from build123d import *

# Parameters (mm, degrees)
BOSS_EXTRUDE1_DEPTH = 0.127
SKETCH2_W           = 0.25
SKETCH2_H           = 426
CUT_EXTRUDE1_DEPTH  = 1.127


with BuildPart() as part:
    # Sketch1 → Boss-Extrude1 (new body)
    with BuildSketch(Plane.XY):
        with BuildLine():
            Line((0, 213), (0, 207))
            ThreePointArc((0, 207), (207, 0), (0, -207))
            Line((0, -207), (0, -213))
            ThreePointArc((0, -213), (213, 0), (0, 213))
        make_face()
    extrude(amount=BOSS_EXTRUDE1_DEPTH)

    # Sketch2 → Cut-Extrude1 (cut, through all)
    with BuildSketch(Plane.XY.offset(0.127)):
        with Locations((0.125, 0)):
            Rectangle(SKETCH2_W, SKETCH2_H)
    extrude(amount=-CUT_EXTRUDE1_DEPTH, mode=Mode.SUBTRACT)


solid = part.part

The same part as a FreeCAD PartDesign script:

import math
import FreeCAD as App
import Part
import Sketcher


def add_polygon(sketch, points):
    """Adds a closed chain of lines whose ends are joined by coincident constraints."""
    first, n = sketch.GeometryCount, len(points)
    for a, b in zip(points, points[1:] + points[:1]):
        sketch.addGeometry(Part.LineSegment(App.Vector(*a, 0), App.Vector(*b, 0)), False)
    for i in range(n):
        sketch.addConstraint(Sketcher.Constraint("Coincident", first + i, 2, first + (i + 1) % n, 1))

doc = App.newDocument("Part")
body = doc.addObject("PartDesign::Body", "Body")

# Sketch on XY plane
sketch1 = body.newObject("Sketcher::SketchObject", "Sketch")
sketch1.AttachmentSupport = (doc.getObject("XY_Plane"), [""])
sketch1.MapMode = "FlatFace"
sketch1.addGeometry([
    Part.LineSegment(App.Vector(0, 213, 0), App.Vector(0, 207, 0)),
    Part.ArcOfCircle(Part.Circle(App.Vector(0, 0, 0), App.Vector(0, 0, 1), 207), math.radians(-90), math.radians(90)),
    Part.LineSegment(App.Vector(0, -207, 0), App.Vector(0, -213, 0)),
    Part.ArcOfCircle(Part.Circle(App.Vector(0, 0, 0), App.Vector(0, 0, 1), 213), math.radians(-90), math.radians(90)),
], False)
sketch1.addConstraint([
    Sketcher.Constraint("Coincident", 0, 2, 1, 2),
    Sketcher.Constraint("Coincident", 1, 1, 2, 1),
    Sketcher.Constraint("Coincident", 2, 2, 3, 1),
    Sketcher.Constraint("Coincident", 3, 2, 0, 1),
    Sketcher.Constraint("Vertical", 0),
    Sketcher.Constraint("Vertical", 2),
    Sketcher.Constraint("Coincident", 1, 3, -1, 1),
    Sketcher.Constraint("Coincident", 3, 3, -1, 1),
    Sketcher.Constraint("PointOnObject", 0, 2, -2),
    Sketcher.Constraint("PointOnObject", 1, 1, -2),
    Sketcher.Constraint("Radius", 1, 207.0),
    Sketcher.Constraint("Radius", 3, 213.0),
])
pad1 = body.newObject("PartDesign::Pad", "Pad")
pad1.Profile = sketch1
pad1.Length = 0.127

# Sketch on XY plane
sketch2 = body.newObject("Sketcher::SketchObject", "Sketch001")
sketch2.AttachmentSupport = (doc.getObject("XY_Plane"), [""])
sketch2.MapMode = "FlatFace"
sketch2.AttachmentOffset = App.Placement(App.Vector(0, 0, 0.127), App.Rotation())
add_polygon(sketch2, [(0, 213), (0, -213), (0.25, -213), (0.25, 213)])  # lines 0-3
sketch2.addConstraint([
    Sketcher.Constraint("Vertical", 0),
    Sketcher.Constraint("Horizontal", 1),
    Sketcher.Constraint("Vertical", 2),
    Sketcher.Constraint("Horizontal", 3),
    Sketcher.Constraint("Symmetric", 0, 2, 3, 2, -1, 1),
    Sketcher.Constraint("DistanceY", 0, 2, 0, 1, 426.0),
    Sketcher.Constraint("DistanceX", 1, 1, 1, 2, 0.25),
])
pocket1 = body.newObject("PartDesign::Pocket", "Pocket")
pocket1.Profile = sketch2
pocket1.Type = "ThroughAll"

doc.recompute()
